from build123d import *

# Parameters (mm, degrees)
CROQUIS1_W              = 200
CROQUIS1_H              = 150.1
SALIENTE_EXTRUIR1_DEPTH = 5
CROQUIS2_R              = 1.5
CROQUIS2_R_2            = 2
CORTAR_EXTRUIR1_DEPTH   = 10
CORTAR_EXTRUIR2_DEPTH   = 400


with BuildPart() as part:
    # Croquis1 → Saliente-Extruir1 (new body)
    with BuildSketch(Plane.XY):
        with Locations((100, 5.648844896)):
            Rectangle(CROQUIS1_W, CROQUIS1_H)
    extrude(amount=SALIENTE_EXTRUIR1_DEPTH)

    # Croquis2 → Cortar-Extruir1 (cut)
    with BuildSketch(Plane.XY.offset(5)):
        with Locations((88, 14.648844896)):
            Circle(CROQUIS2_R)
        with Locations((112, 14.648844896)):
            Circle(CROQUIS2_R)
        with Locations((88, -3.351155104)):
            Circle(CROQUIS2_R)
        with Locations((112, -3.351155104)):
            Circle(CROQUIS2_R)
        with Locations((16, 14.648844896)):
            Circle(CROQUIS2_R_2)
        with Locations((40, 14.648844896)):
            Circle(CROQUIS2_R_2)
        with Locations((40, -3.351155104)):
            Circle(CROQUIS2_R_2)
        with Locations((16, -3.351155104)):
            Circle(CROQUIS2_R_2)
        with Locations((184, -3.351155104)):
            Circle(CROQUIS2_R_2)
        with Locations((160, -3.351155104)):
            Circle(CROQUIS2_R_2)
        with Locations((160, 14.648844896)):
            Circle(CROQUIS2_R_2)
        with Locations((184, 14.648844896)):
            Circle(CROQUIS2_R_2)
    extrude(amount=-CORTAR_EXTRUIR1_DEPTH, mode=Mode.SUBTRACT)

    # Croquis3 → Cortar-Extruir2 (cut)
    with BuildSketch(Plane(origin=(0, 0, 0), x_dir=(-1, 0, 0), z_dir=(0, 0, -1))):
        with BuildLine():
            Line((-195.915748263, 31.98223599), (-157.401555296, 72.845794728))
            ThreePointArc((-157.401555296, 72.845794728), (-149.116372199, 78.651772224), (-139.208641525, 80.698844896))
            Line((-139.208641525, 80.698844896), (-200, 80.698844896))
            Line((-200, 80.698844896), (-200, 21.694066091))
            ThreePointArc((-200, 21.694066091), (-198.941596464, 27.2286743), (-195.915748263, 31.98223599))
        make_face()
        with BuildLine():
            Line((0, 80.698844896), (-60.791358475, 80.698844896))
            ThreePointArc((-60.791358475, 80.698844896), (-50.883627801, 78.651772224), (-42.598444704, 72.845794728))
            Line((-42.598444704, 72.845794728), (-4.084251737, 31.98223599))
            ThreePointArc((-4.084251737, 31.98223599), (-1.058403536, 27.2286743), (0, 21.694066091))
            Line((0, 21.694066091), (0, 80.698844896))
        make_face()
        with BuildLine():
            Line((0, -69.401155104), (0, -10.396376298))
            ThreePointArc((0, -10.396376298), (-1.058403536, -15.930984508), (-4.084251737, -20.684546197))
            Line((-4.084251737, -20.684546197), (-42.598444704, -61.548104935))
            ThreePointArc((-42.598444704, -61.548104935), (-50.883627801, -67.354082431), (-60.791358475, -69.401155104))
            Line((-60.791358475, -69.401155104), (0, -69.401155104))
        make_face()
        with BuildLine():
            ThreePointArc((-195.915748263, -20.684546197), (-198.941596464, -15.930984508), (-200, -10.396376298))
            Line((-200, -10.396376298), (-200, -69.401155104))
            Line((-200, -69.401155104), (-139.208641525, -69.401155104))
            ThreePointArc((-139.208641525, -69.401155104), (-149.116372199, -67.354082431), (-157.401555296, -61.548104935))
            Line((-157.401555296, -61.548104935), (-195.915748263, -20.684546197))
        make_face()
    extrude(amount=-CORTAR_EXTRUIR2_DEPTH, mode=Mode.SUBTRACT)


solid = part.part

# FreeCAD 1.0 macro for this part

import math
import FreeCAD as App
import Part
import Sketcher

doc = App.newDocument("Part")
body = doc.addObject("PartDesign::Body", "Body")

sketch1 = body.newObject("Sketcher::SketchObject", "Sketch")
sketch1.AttachmentSupport = (doc.getObject("XY_Plane"), [""])
sketch1.MapMode = "FlatFace"
sketch1.addGeometry([
    Part.LineSegment(App.Vector(0, 80.698845, 0), App.Vector(0, -69.401155, 0)),
    Part.LineSegment(App.Vector(0, -69.401155, 0), App.Vector(200, -69.401155, 0)),
    Part.LineSegment(App.Vector(200, -69.401155, 0), App.Vector(200, 80.698845, 0)),
    Part.LineSegment(App.Vector(200, 80.698845, 0), App.Vector(0, 80.698845, 0)),
], False)
sketch1.addConstraint([
    Sketcher.Constraint("Coincident", 0, 2, 1, 1),
    Sketcher.Constraint("Coincident", 1, 2, 2, 1),
    Sketcher.Constraint("Coincident", 2, 2, 3, 1),
    Sketcher.Constraint("Coincident", 3, 2, 0, 1),
    Sketcher.Constraint("Vertical", 0),
    Sketcher.Constraint("Horizontal", 1),
    Sketcher.Constraint("Vertical", 2),
    Sketcher.Constraint("Horizontal", 3),
    Sketcher.Constraint("PointOnObject", 0, 2, -2),
    Sketcher.Constraint("DistanceX", 1, 1, 1, 2, 200.0),
    Sketcher.Constraint("DistanceY", 0, 2, 0, 1, 150.1),
    Sketcher.Constraint("DistanceY", 0, 2, -1, 1, 69.401155),
])
pad1 = body.newObject("PartDesign::Pad", "Pad")
pad1.Profile = sketch1
pad1.Length = 5

sketch2 = body.newObject("Sketcher::SketchObject", "Sketch001")
sketch2.AttachmentSupport = (doc.getObject("XY_Plane"), [""])
sketch2.MapMode = "FlatFace"
sketch2.AttachmentOffset = App.Placement(App.Vector(0, 0, 5), App.Rotation())
sketch2.addGeometry([
    Part.Circle(App.Vector(88, 14.648845, 0), App.Vector(0, 0, 1), 1.5),
    Part.Circle(App.Vector(112, 14.648845, 0), App.Vector(0, 0, 1), 1.5),
    Part.Circle(App.Vector(88, -3.351155, 0), App.Vector(0, 0, 1), 1.5),
    Part.Circle(App.Vector(112, -3.351155, 0), App.Vector(0, 0, 1), 1.5),
    Part.Circle(App.Vector(16, 14.648845, 0), App.Vector(0, 0, 1), 2),
    Part.Circle(App.Vector(40, 14.648845, 0), App.Vector(0, 0, 1), 2),
    Part.Circle(App.Vector(40, -3.351155, 0), App.Vector(0, 0, 1), 2),
    Part.Circle(App.Vector(16, -3.351155, 0), App.Vector(0, 0, 1), 2),
    Part.Circle(App.Vector(184, -3.351155, 0), App.Vector(0, 0, 1), 2),
    Part.Circle(App.Vector(160, -3.351155, 0), App.Vector(0, 0, 1), 2),
    Part.Circle(App.Vector(160, 14.648845, 0), App.Vector(0, 0, 1), 2),
    Part.Circle(App.Vector(184, 14.648845, 0), App.Vector(0, 0, 1), 2),
], False)
sketch2.addConstraint([
    Sketcher.Constraint("Equal", 0, 1),
    Sketcher.Constraint("Equal", 1, 2),
    Sketcher.Constraint("Equal", 2, 3),
    Sketcher.Constraint("Equal", 4, 5),
    Sketcher.Constraint("Equal", 5, 6),
    Sketcher.Constraint("Equal", 6, 7),
    Sketcher.Constraint("Equal", 7, 8),
    Sketcher.Constraint("Equal", 8, 9),
    Sketcher.Constraint("Equal", 9, 10),
    Sketcher.Constraint("Equal", 10, 11),
    Sketcher.Constraint("Horizontal", 0, 3, 1, 3),
    Sketcher.Constraint("Horizontal", 2, 3, 3, 3),
    Sketcher.Constraint("Horizontal", 1, 3, 4, 3),
    Sketcher.Constraint("Horizontal", 4, 3, 5, 3),
    Sketcher.Constraint("Horizontal", 3, 3, 6, 3),
    Sketcher.Constraint("Horizontal", 6, 3, 7, 3),
    Sketcher.Constraint("Horizontal", 7, 3, 8, 3),
    Sketcher.Constraint("Horizontal", 8, 3, 9, 3),
    Sketcher.Constraint("Horizontal", 5, 3, 10, 3),
    Sketcher.Constraint("Horizontal", 10, 3, 11, 3),
    Sketcher.Constraint("Vertical", 0, 3, 2, 3),
    Sketcher.Constraint("Vertical", 1, 3, 3, 3),
    Sketcher.Constraint("Vertical", 5, 3, 6, 3),
    Sketcher.Constraint("Vertical", 4, 3, 7, 3),
    Sketcher.Constraint("Vertical", 9, 3, 10, 3),
    Sketcher.Constraint("Vertical", 8, 3, 11, 3),
    Sketcher.Constraint("Diameter", 0, 3.0),
    Sketcher.Constraint("Diameter", 4, 4.0),
    Sketcher.Constraint("DistanceX", -1, 1, 0, 3, 88.0),
    Sketcher.Constraint("DistanceX", -1, 1, 1, 3, 112.0),
    Sketcher.Constraint("DistanceX", -1, 1, 4, 3, 16.0),
    Sketcher.Constraint("DistanceX", -1, 1, 5, 3, 40.0),
    Sketcher.Constraint("DistanceX", -1, 1, 8, 3, 184.0),
    Sketcher.Constraint("DistanceX", -1, 1, 9, 3, 160.0),
    Sketcher.Constraint("DistanceY", 2, 3, 0, 3, 18.0),
    Sketcher.Constraint("DistanceY", -1, 1, 0, 3, 14.648845),
])
pocket1 = body.newObject("PartDesign::Pocket", "Pocket")
pocket1.Profile = sketch2
pocket1.Length = 10

sketch3 = body.newObject("Sketcher::SketchObject", "Sketch002")
sketch3.AttachmentSupport = (doc.getObject("XY_Plane"), [""])
sketch3.MapMode = "FlatFace"
sketch3.addGeometry([
    Part.LineSegment(App.Vector(195.915748, 31.982236, 0), App.Vector(157.401555, 72.845795, 0)),
    Part.ArcOfCircle(Part.Circle(App.Vector(139.208642, 55.698845, 0), App.Vector(0, 0, 1), 25), math.radians(43.304696), math.radians(90)),
    Part.LineSegment(App.Vector(139.208642, 80.698845, 0), App.Vector(200, 80.698845, 0)),
    Part.LineSegment(App.Vector(200, 80.698845, 0), App.Vector(200, 21.694066, 0)),
    Part.ArcOfCircle(Part.Circle(App.Vector(185, 21.694066, 0), App.Vector(0, 0, 1), 15), math.radians(0), math.radians(43.304696)),
    Part.LineSegment(App.Vector(0, 80.698845, 0), App.Vector(60.791358, 80.698845, 0)),
    Part.ArcOfCircle(Part.Circle(App.Vector(60.791358, 55.698845, 0), App.Vector(0, 0, 1), 25), math.radians(90), math.radians(136.695304)),
    Part.LineSegment(App.Vector(42.598445, 72.845795, 0), App.Vector(4.084252, 31.982236, 0)),
    Part.ArcOfCircle(Part.Circle(App.Vector(15, 21.694066, 0), App.Vector(0, 0, 1), 15), math.radians(136.695304), math.radians(180)),
    Part.LineSegment(App.Vector(0, 21.694066, 0), App.Vector(0, 80.698845, 0)),
    Part.LineSegment(App.Vector(0, -69.401155, 0), App.Vector(0, -10.396376, 0)),
    Part.ArcOfCircle(Part.Circle(App.Vector(15, -10.396376, 0), App.Vector(0, 0, 1), 15), math.radians(180), math.radians(223.304696)),
    Part.LineSegment(App.Vector(4.084252, -20.684546, 0), App.Vector(42.598445, -61.548105, 0)),
    Part.ArcOfCircle(Part.Circle(App.Vector(60.791358, -44.401155, 0), App.Vector(0, 0, 1), 25), math.radians(-136.695304), math.radians(-90)),
    Part.LineSegment(App.Vector(60.791358, -69.401155, 0), App.Vector(0, -69.401155, 0)),
    Part.ArcOfCircle(Part.Circle(App.Vector(185, -10.396376, 0), App.Vector(0, 0, 1), 15), math.radians(-43.304696), math.radians(0)),
    Part.LineSegment(App.Vector(200, -10.396376, 0), App.Vector(200, -69.401155, 0)),
    Part.LineSegment(App.Vector(200, -69.401155, 0), App.Vector(139.208642, -69.401155, 0)),
    Part.ArcOfCircle(Part.Circle(App.Vector(139.208642, -44.401155, 0), App.Vector(0, 0, 1), 25), math.radians(-90), math.radians(-43.304696)),
    Part.LineSegment(App.Vector(157.401555, -61.548105, 0), App.Vector(195.915748, -20.684546, 0)),
], False)
sketch3.addConstraint([
    Sketcher.Constraint("Tangent", 0, 2, 1, 1),
    Sketcher.Constraint("Tangent", 1, 2, 2, 1),
    Sketcher.Constraint("Coincident", 2, 2, 3, 1),
    Sketcher.Constraint("Tangent", 3, 2, 4, 1),
    Sketcher.Constraint("Tangent", 4, 2, 0, 1),
    Sketcher.Constraint("Tangent", 5, 2, 6, 1),
    Sketcher.Constraint("Tangent", 6, 2, 7, 1),
    Sketcher.Constraint("Tangent", 7, 2, 8, 1),
    Sketcher.Constraint("Tangent", 8, 2, 9, 1),
    Sketcher.Constraint("Coincident", 9, 2, 5, 1),
    Sketcher.Constraint("Tangent", 10, 2, 11, 1),
    Sketcher.Constraint("Tangent", 11, 2, 12, 1),
    Sketcher.Constraint("Tangent", 12, 2, 13, 1),
    Sketcher.Constraint("Tangent", 13, 2, 14, 1),
    Sketcher.Constraint("Coincident", 14, 2, 10, 1),
    Sketcher.Constraint("Tangent", 15, 2, 16, 1),
    Sketcher.Constraint("Coincident", 16, 2, 17, 1),
    Sketcher.Constraint("Tangent", 17, 2, 18, 1),
    Sketcher.Constraint("Tangent", 18, 2, 19, 1),
    Sketcher.Constraint("Tangent", 19, 2, 15, 1),
    Sketcher.Constraint("Horizontal", 2),
    Sketcher.Constraint("Vertical", 3),
    Sketcher.Constraint("Horizontal", 5),
    Sketcher.Constraint("Vertical", 9),
    Sketcher.Constraint("Vertical", 10),
    Sketcher.Constraint("Horizontal", 14),
    Sketcher.Constraint("Vertical", 16),
    Sketcher.Constraint("Horizontal", 17),
    Sketcher.Constraint("Equal", 1, 6),
    Sketcher.Constraint("Equal", 4, 8),
    Sketcher.Constraint("Equal", 8, 11),
    Sketcher.Constraint("Equal", 6, 13),
    Sketcher.Constraint("Equal", 11, 15),
    Sketcher.Constraint("Equal", 13, 18),
    Sketcher.Constraint("PointOnObject", 8, 2, -2),
    Sketcher.Constraint("PointOnObject", 10, 2, -2),
    Sketcher.Constraint("Parallel", 0, 12),
    Sketcher.Constraint("Parallel", 7, 19),
    Sketcher.Constraint("Horizontal", 1, 3, 6, 3),
    Sketcher.Constraint("Horizontal", 4, 3, 8, 3),
    Sketcher.Constraint("Horizontal", 11, 3, 15, 3),
    Sketcher.Constraint("Horizontal", 13, 3, 18, 3),
    Sketcher.Constraint("Horizontal", 0, 2, 6, 2),
    Sketcher.Constraint("Vertical", 6, 3, 13, 3),
    Sketcher.Constraint("Vertical", 4, 3, 15, 3),
    Sketcher.Constraint("Radius", 1, 25.0),
    Sketcher.Constraint("Radius", 4, 15.0),
    Sketcher.Constraint("DistanceX", -1, 1, 4, 3, 185.0),
    Sketcher.Constraint("DistanceY", 13, 3, 6, 3, 100.1),
    Sketcher.Constraint("DistanceX", 2, 1, 2, 2, 60.791358),
    Sketcher.Constraint("DistanceY", 3, 2, 3, 1, 59.004779),
    Sketcher.Constraint("DistanceY", -1, 1, 1, 3, 55.698845),
])
pocket2 = body.newObject("PartDesign::Pocket", "Pocket001")
pocket2.Profile = sketch3
pocket2.Length = 400
pocket2.Reversed = True

doc.recompute()
